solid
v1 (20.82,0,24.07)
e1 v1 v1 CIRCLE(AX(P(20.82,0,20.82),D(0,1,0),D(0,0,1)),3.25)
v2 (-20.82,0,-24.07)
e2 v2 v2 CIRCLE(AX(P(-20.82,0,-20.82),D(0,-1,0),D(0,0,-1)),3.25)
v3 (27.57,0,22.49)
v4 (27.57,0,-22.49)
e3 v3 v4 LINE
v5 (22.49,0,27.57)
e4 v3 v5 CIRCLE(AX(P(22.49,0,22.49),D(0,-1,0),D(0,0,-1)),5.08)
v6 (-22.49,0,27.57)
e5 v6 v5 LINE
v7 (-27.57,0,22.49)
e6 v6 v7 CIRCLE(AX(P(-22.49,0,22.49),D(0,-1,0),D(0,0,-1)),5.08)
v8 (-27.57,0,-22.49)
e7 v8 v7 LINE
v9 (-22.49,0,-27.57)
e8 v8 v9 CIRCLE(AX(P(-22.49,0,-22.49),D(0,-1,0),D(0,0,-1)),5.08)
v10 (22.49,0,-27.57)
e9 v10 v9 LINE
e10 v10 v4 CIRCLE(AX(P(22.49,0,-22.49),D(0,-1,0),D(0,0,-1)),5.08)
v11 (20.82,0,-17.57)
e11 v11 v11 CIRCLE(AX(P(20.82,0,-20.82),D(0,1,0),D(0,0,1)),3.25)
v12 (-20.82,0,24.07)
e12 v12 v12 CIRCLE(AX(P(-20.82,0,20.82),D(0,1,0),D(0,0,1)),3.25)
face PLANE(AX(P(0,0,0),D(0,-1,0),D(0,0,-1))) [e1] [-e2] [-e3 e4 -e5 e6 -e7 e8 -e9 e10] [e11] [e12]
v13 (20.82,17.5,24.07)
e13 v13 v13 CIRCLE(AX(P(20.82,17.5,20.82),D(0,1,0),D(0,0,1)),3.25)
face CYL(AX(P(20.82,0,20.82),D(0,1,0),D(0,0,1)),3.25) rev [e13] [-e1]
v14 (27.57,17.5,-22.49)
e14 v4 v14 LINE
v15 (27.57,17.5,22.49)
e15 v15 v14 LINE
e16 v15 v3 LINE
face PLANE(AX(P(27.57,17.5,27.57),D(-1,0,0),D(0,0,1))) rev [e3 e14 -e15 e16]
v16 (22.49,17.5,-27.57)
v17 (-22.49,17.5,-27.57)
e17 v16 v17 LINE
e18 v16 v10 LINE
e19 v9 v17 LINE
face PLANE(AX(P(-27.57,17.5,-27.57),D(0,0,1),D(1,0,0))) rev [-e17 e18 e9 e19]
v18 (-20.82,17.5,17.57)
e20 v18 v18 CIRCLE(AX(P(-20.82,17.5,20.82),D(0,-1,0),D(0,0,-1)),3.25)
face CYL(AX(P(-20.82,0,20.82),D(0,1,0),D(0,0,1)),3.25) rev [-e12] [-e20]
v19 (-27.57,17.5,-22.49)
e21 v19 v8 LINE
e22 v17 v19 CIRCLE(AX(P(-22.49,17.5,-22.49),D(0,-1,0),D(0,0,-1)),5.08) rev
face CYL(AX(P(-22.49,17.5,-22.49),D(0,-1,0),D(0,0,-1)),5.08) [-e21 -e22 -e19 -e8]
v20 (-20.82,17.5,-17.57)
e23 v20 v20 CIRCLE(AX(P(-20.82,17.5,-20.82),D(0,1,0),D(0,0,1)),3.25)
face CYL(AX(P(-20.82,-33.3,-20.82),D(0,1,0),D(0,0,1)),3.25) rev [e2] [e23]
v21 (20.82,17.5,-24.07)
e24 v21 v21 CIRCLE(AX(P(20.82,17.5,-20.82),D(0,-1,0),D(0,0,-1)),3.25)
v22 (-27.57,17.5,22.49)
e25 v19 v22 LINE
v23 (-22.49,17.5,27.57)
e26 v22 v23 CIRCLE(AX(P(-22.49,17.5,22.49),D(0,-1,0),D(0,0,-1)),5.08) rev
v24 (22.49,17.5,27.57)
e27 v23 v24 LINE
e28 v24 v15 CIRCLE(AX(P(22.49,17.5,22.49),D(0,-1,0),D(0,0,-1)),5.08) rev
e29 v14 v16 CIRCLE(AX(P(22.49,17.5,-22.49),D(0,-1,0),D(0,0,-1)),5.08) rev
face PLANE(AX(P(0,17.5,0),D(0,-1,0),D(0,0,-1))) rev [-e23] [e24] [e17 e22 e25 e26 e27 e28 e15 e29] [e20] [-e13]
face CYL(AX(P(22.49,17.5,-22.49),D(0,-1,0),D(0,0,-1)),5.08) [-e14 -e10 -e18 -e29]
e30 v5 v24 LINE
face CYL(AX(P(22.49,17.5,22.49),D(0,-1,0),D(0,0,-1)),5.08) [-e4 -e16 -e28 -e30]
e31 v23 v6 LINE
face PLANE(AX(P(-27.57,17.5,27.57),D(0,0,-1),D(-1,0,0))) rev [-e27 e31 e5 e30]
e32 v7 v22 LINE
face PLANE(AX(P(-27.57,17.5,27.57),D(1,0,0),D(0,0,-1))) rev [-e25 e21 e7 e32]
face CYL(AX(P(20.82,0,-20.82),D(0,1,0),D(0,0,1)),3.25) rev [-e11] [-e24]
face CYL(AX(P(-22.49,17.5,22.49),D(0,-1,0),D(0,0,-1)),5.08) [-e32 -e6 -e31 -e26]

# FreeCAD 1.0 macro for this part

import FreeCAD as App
import Part
import Sketcher
from FreeCAD import Vector
Q = App.Units.Quantity


def edges_at(feature, points):
    """Names of the edges that pass closest to the given points."""
    edges = feature.Shape.Edges
    near = lambda p: min(range(len(edges)), key=lambda i: edges[i].distToShape(Part.Vertex(*p))[0])
    return sorted({f"Edge{near(p) + 1}" for p in points})


def add_polygon(sketch, points):
    """Adds a closed chain of lines whose ends are joined by coincident constraints."""
    first, n = sketch.GeometryCount, len(points)
    for a, b in zip(points, points[1:] + points[:1]):
        sketch.addGeometry(Part.LineSegment(App.Vector(*a, 0), App.Vector(*b, 0)), False)
    for i in range(n):
        sketch.addConstraint(Sketcher.Constraint("Coincident", first + i, 2, first + (i + 1) % n, 1))

doc = App.newDocument("Part")
body = doc.addObject("PartDesign::Body", "Body")

# Sketch on XZ plane
sketch1 = body.newObject("Sketcher::SketchObject", "Sketch")
sketch1.AttachmentSupport = (doc.getObject("XZ_Plane"), [""])
sketch1.MapMode = "FlatFace"
add_polygon(sketch1, [(-27.57, -27.57), (-27.57, 27.57), (27.57, 27.57), (27.57, -27.57)])  # lines 0-3
sketch1.addConstraint([
    Sketcher.Constraint("Vertical", 0),
    Sketcher.Constraint("Horizontal", 1),
    Sketcher.Constraint("Vertical", 2),
    Sketcher.Constraint("Horizontal", 3),
    Sketcher.Constraint("Symmetric", 0, 2, 2, 2, -1, 1),
    Sketcher.Constraint("Equal", 3, 0),
    Sketcher.Constraint("DistanceX", 1, 1, 1, 2, Q("55.14 mm")),
])
pad1 = body.newObject("PartDesign::Pad", "Pad")
pad1.Profile = sketch1
pad1.Length = 17.5
pad1.Reversed = True

# Sketch on XZ plane
sketch2 = body.newObject("Sketcher::SketchObject", "Sketch001")
sketch2.AttachmentSupport = (doc.getObject("XZ_Plane"), [""])
sketch2.MapMode = "FlatFace"
sketch2.AttachmentOffset = App.Placement(Vector(0, 0, -17.5), App.Rotation())
sketch2.addGeometry(Part.Circle(Vector(-20.82, -20.82, 0), Vector(0, 0, 1), 3.25), False)
sketch2.addConstraint([
    Sketcher.Constraint("Diameter", 0, Q("6.5 mm")),
    Sketcher.Constraint("DistanceX", 0, 3, -1, 1, Q("20.82 mm")),
    Sketcher.Constraint("DistanceY", 0, 3, -1, 1, Q("20.82 mm")),
])
pocket1 = body.newObject("PartDesign::Pocket", "Pocket")
pocket1.Profile = sketch2
pocket1.Length = 50.8
pocket1.Reversed = True
doc.recompute()

fillet = body.newObject("PartDesign::Fillet", "Fillet")
fillet.Base = (pocket1, edges_at(pocket1, [(-27.57, 8.75, -27.57)]))
fillet.Radius = 5.08

# Sketch on XZ plane
sketch3 = body.newObject("Sketcher::SketchObject", "Sketch002")
sketch3.AttachmentSupport = (doc.getObject("XZ_Plane"), [""])
sketch3.MapMode = "FlatFace"
sketch3.AttachmentOffset = App.Placement(Vector(0, 0, -17.5), App.Rotation())
sketch3.addGeometry(Part.Circle(Vector(20.82, -20.82, 0), Vector(0, 0, 1), 3.25), False)
sketch3.addConstraint([
    Sketcher.Constraint("Diameter", 0, Q("6.5 mm")),
    Sketcher.Constraint("DistanceX", -1, 1, 0, 3, Q("20.82 mm")),
    Sketcher.Constraint("DistanceY", 0, 3, -1, 1, Q("20.82 mm")),
])
pocket2 = body.newObject("PartDesign::Pocket", "Pocket001")
pocket2.Profile = sketch3
pocket2.Type = "ThroughAll"
pocket2.Midplane = True
doc.recompute()

fillet2 = body.newObject("PartDesign::Fillet", "Fillet001")
fillet2.Base = (pocket2, edges_at(pocket2, [(27.57, 8.75, -27.57)]))
fillet2.Radius = 5.08

# Sketch on XZ plane
sketch4 = body.newObject("Sketcher::SketchObject", "Sketch003")
sketch4.AttachmentSupport = (doc.getObject("XZ_Plane"), [""])
sketch4.MapMode = "FlatFace"
sketch4.AttachmentOffset = App.Placement(Vector(0, 0, -17.5), App.Rotation())
sketch4.addGeometry(Part.Circle(Vector(-20.82, 20.82, 0), Vector(0, 0, 1), 3.25), False)
sketch4.addConstraint([
    Sketcher.Constraint("Diameter", 0, Q("6.5 mm")),
    Sketcher.Constraint("DistanceX", 0, 3, -1, 1, Q("20.82 mm")),
    Sketcher.Constraint("DistanceY", -1, 1, 0, 3, Q("20.82 mm")),
])
pocket3 = body.newObject("PartDesign::Pocket", "Pocket002")
pocket3.Profile = sketch4
pocket3.Type = "ThroughAll"
pocket3.Midplane = True

# Sketch on XZ plane
sketch5 = body.newObject("Sketcher::SketchObject", "Sketch004")
sketch5.AttachmentSupport = (doc.getObject("XZ_Plane"), [""])
sketch5.MapMode = "FlatFace"
sketch5.AttachmentOffset = App.Placement(Vector(0, 0, -17.5), App.Rotation())
sketch5.addGeometry(Part.Circle(Vector(20.82, 20.82, 0), Vector(0, 0, 1), 3.25), False)
sketch5.addConstraint([
    Sketcher.Constraint("Diameter", 0, Q("6.5 mm")),
    Sketcher.Constraint("DistanceX", -1, 1, 0, 3, Q("20.82 mm")),
    Sketcher.Constraint("DistanceY", -1, 1, 0, 3, Q("20.82 mm")),
])
pocket4 = body.newObject("PartDesign::Pocket", "Pocket003")
pocket4.Profile = sketch5
pocket4.Type = "ThroughAll"
pocket4.Midplane = True
doc.recompute()

fillet3 = body.newObject("PartDesign::Fillet", "Fillet002")
fillet3.Base = (pocket4, edges_at(pocket4, [(27.57, 8.75, 27.57), (-27.57, 8.75, 27.57)]))
fillet3.Radius = 5.08

doc.recompute()
